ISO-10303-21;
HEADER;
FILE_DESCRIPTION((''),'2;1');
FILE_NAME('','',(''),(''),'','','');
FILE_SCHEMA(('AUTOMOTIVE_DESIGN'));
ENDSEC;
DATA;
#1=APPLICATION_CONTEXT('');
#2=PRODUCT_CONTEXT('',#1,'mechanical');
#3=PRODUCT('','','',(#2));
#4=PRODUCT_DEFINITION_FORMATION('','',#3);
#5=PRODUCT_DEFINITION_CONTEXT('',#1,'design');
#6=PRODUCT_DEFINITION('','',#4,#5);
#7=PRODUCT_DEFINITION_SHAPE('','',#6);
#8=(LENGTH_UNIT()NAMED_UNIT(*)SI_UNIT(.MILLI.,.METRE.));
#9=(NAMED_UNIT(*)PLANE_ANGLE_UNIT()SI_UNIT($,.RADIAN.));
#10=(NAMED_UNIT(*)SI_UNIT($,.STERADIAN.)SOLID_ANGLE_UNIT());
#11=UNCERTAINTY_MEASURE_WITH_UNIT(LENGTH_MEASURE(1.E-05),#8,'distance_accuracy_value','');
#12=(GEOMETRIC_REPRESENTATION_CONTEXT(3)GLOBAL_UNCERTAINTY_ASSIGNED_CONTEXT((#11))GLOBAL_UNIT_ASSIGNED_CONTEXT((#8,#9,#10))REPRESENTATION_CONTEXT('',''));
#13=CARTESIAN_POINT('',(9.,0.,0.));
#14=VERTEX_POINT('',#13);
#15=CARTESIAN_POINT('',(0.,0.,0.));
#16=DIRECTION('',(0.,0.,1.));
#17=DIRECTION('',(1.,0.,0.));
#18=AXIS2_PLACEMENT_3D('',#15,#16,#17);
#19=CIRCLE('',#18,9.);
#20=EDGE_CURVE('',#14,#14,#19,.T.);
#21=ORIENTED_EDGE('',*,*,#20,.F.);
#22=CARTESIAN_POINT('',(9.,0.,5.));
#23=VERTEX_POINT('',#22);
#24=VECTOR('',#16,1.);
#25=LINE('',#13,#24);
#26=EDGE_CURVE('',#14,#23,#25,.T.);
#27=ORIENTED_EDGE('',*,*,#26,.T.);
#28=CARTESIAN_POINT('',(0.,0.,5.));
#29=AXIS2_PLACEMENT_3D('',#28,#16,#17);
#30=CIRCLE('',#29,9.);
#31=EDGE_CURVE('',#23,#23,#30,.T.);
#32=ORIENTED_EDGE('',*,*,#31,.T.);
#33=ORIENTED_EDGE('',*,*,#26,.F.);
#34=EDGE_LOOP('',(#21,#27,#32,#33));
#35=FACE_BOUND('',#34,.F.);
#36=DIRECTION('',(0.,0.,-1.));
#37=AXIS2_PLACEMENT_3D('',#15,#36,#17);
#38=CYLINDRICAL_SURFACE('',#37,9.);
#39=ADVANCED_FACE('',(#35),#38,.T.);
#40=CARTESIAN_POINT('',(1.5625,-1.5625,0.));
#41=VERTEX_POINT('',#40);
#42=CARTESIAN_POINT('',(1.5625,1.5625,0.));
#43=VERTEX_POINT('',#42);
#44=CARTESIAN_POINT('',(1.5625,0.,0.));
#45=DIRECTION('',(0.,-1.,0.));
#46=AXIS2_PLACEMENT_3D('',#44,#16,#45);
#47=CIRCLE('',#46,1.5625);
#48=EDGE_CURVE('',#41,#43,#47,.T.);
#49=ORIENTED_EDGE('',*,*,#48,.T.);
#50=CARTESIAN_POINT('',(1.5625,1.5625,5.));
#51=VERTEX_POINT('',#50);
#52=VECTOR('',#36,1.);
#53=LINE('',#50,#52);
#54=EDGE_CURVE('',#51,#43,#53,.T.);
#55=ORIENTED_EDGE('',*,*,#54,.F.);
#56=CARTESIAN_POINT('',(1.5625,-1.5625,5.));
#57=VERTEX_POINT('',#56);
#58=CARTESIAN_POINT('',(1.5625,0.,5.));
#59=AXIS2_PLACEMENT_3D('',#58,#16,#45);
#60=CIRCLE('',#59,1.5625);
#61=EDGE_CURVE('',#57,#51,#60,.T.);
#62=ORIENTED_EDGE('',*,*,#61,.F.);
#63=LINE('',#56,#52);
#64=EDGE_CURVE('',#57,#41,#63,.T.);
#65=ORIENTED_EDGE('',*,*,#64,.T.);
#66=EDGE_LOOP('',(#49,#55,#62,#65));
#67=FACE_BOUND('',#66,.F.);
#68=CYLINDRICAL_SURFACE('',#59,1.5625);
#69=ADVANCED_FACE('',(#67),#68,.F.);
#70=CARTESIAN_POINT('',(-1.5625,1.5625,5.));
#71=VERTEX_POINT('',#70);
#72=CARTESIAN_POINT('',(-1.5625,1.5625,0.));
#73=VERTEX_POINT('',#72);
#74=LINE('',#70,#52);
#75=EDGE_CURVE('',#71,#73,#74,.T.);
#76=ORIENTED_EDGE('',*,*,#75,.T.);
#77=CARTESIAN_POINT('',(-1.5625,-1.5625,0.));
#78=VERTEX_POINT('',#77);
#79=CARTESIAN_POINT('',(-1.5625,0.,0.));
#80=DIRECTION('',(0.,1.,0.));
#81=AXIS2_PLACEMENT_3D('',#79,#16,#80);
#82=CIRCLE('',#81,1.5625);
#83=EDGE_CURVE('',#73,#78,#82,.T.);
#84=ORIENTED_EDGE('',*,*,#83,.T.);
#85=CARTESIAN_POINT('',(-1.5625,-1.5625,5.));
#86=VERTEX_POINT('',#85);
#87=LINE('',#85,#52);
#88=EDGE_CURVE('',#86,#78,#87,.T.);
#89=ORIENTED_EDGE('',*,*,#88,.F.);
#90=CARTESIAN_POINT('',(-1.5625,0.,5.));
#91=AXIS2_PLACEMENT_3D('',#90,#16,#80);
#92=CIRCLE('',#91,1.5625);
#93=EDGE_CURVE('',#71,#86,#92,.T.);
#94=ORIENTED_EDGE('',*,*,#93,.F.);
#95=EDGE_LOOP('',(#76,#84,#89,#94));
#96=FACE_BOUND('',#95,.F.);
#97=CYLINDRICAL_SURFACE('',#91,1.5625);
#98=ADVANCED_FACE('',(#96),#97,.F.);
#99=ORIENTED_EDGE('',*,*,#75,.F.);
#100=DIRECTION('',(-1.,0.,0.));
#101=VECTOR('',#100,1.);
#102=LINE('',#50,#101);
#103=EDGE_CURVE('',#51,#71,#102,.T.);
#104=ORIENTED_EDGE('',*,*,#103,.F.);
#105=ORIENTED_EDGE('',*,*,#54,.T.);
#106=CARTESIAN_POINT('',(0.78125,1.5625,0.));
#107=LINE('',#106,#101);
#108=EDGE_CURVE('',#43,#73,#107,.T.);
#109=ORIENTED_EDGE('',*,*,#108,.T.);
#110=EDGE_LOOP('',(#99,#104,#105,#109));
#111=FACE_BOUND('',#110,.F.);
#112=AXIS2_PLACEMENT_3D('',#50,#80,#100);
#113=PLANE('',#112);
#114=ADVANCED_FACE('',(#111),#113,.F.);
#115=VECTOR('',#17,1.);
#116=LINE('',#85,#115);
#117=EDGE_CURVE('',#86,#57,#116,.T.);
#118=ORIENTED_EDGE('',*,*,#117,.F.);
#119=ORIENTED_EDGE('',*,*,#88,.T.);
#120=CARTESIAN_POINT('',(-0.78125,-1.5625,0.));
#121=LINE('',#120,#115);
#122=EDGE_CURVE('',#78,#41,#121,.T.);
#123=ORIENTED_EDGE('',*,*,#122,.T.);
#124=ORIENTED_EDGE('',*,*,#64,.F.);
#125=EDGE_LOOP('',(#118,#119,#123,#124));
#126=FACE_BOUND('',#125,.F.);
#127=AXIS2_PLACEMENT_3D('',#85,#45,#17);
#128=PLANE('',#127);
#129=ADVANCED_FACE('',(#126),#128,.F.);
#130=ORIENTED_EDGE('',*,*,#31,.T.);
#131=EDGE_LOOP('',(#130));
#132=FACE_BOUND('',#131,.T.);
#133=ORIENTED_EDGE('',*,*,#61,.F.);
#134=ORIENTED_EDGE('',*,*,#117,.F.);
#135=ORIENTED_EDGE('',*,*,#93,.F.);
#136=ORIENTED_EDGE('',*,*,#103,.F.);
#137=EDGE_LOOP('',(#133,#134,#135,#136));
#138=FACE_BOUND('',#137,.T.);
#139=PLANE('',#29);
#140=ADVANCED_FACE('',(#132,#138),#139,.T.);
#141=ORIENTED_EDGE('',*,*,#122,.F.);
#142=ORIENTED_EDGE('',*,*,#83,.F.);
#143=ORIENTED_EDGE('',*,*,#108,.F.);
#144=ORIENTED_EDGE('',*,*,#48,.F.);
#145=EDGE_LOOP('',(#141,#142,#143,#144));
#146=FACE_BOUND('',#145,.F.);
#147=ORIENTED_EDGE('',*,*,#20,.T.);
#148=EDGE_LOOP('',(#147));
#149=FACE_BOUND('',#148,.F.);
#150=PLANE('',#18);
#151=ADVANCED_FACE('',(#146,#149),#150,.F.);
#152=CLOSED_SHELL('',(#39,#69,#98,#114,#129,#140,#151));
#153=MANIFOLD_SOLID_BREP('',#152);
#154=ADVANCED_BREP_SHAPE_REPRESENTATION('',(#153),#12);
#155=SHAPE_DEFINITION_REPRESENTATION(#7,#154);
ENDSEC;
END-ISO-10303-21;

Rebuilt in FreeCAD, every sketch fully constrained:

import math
import FreeCAD as App
import Part
import Sketcher

V = App.Vector
Q = App.Units.Quantity

doc = App.newDocument("Part")
body = doc.addObject("PartDesign::Body", "Body")

sketch1 = doc.addObject("Sketcher::SketchObject", "Sketch")
body.addObject(sketch1)
sketch1.AttachmentSupport = (doc.XY_Plane, [""])
sketch1.MapMode = "FlatFace"
sketch1.addGeometry(Part.Circle(V(0, 0, 0), V(0, 0, 1), 9), False)
sketch1.addConstraint(Sketcher.Constraint("Coincident", 0, 3, -1, 1))
sketch1.addConstraint(Sketcher.Constraint("Diameter", 0, Q("18 mm")))
pad1 = doc.addObject("PartDesign::Pad", "Pad")
body.addObject(pad1)
pad1.Profile = sketch1
pad1.Length = 5

sketch2 = doc.addObject("Sketcher::SketchObject", "Sketch001")
body.addObject(sketch2)
sketch2.AttachmentSupport = (doc.XY_Plane, [""])
sketch2.MapMode = "FlatFace"
sketch2.AttachmentOffset = App.Placement(V(0, 0, 5), App.Rotation())
sketch2.addGeometry(Part.LineSegment(V(-1.5625, -1.5625, 0), V(1.5625, -1.5625, 0)), False)
sketch2.addGeometry(Part.ArcOfCircle(Part.Circle(V(1.5625, 0, 0), V(0, 0, 1), 1.5625), math.radians(-90), math.radians(90)), False)
sketch2.addGeometry(Part.LineSegment(V(1.5625, 1.5625, 0), V(-1.5625, 1.5625, 0)), False)
sketch2.addGeometry(Part.ArcOfCircle(Part.Circle(V(-1.5625, 0, 0), V(0, 0, 1), 1.5625), math.radians(90), math.radians(270)), False)
sketch2.addConstraint(Sketcher.Constraint("Tangent", 0, 2, 1, 1))
sketch2.addConstraint(Sketcher.Constraint("Tangent", 1, 2, 2, 1))
sketch2.addConstraint(Sketcher.Constraint("Tangent", 2, 2, 3, 1))
sketch2.addConstraint(Sketcher.Constraint("Tangent", 3, 2, 0, 1))
sketch2.addConstraint(Sketcher.Constraint("Horizontal", 0))
sketch2.addConstraint(Sketcher.Constraint("Horizontal", 2))
sketch2.addConstraint(Sketcher.Constraint("Symmetric", 1, 3, 3, 3, -1, 1))
sketch2.addConstraint(Sketcher.Constraint("Radius", 1, Q("1.5625 mm")))
sketch2.addConstraint(Sketcher.Constraint("DistanceX", 0, 1, 0, 2, Q("3.125 mm")))
pocket1 = doc.addObject("PartDesign::Pocket", "Pocket")
body.addObject(pocket1)
pocket1.Profile = sketch2
pocket1.Length = 25

doc.recompute()
